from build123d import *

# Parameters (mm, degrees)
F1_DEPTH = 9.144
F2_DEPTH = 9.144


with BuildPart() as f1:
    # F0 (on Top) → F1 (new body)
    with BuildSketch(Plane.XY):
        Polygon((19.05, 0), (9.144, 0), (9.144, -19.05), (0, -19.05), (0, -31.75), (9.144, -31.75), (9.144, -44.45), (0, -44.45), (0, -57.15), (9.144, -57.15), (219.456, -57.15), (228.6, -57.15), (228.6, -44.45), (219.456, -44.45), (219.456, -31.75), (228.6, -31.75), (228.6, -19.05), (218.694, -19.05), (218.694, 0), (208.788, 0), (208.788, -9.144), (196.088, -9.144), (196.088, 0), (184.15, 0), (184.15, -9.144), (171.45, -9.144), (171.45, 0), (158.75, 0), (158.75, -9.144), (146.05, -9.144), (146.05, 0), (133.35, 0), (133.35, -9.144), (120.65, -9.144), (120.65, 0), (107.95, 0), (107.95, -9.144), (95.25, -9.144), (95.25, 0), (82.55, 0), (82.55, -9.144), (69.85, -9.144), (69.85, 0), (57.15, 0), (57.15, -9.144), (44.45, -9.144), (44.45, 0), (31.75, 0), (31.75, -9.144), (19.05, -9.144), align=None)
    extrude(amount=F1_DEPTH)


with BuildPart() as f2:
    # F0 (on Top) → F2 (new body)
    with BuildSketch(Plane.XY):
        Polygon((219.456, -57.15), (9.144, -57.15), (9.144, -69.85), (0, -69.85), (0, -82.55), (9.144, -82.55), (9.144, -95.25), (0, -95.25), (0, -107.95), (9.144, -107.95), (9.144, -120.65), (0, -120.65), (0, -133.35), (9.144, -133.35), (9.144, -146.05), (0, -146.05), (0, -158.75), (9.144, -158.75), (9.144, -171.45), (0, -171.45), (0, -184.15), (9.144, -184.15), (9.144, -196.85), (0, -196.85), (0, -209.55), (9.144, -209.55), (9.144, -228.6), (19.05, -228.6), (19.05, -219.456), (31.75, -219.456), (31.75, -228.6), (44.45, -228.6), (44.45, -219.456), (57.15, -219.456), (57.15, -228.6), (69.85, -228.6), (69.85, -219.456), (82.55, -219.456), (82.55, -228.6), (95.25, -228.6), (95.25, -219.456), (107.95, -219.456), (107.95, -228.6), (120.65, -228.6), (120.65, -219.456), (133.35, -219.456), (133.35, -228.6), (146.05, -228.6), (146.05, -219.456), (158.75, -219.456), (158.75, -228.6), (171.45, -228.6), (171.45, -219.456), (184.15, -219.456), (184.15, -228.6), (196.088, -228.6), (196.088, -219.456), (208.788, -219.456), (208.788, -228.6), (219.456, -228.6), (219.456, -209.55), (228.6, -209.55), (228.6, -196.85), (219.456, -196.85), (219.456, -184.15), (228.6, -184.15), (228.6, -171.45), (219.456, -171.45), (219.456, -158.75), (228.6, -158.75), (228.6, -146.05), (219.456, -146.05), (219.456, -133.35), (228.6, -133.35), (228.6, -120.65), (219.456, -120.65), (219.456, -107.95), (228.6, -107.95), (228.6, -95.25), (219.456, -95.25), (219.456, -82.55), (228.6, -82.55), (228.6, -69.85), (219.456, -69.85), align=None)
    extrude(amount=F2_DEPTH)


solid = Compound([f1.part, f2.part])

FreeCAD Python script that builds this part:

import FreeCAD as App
import Part
import Sketcher
from FreeCAD import Vector
Q = App.Units.Quantity

doc = App.newDocument("Part")
body = doc.addObject("PartDesign::Body", "Body")

# Sketch on XY plane
sketch1 = doc.addObject("Sketcher::SketchObject", "Sketch")
body.addObject(sketch1)
sketch1.AttachmentSupport = (doc.XY_Plane, [""])
sketch1.MapMode = "FlatFace"
sketch1.addGeometry([
    Part.LineSegment(Vector(19.05, 0, 0), Vector(9.144, 0, 0)),  # 0
    Part.LineSegment(Vector(9.144, 0, 0), Vector(9.144, -19.05, 0)),  # 1
    Part.LineSegment(Vector(9.144, -19.05, 0), Vector(0, -19.05, 0)),  # 2
    Part.LineSegment(Vector(0, -19.05, 0), Vector(0, -31.75, 0)),  # 3
    Part.LineSegment(Vector(0, -31.75, 0), Vector(9.144, -31.75, 0)),  # 4
    Part.LineSegment(Vector(9.144, -31.75, 0), Vector(9.144, -44.45, 0)),  # 5
    Part.LineSegment(Vector(9.144, -44.45, 0), Vector(0, -44.45, 0)),  # 6
    Part.LineSegment(Vector(0, -44.45, 0), Vector(0, -57.15, 0)),  # 7
    Part.LineSegment(Vector(0, -57.15, 0), Vector(228.6, -57.15, 0)),  # 8
    Part.LineSegment(Vector(228.6, -57.15, 0), Vector(228.6, -44.45, 0)),  # 9
    Part.LineSegment(Vector(228.6, -44.45, 0), Vector(219.456, -44.45, 0)),  # 10
    Part.LineSegment(Vector(219.456, -44.45, 0), Vector(219.456, -31.75, 0)),  # 11
    Part.LineSegment(Vector(219.456, -31.75, 0), Vector(228.6, -31.75, 0)),  # 12
    Part.LineSegment(Vector(228.6, -31.75, 0), Vector(228.6, -19.05, 0)),  # 13
    Part.LineSegment(Vector(228.6, -19.05, 0), Vector(218.694, -19.05, 0)),  # 14
    Part.LineSegment(Vector(218.694, -19.05, 0), Vector(218.694, 0, 0)),  # 15
    Part.LineSegment(Vector(218.694, 0, 0), Vector(208.788, 0, 0)),  # 16
    Part.LineSegment(Vector(208.788, 0, 0), Vector(208.788, -9.144, 0)),  # 17
    Part.LineSegment(Vector(208.788, -9.144, 0), Vector(196.088, -9.144, 0)),  # 18
    Part.LineSegment(Vector(196.088, -9.144, 0), Vector(196.088, 0, 0)),  # 19
    Part.LineSegment(Vector(196.088, 0, 0), Vector(184.15, 0, 0)),  # 20
    Part.LineSegment(Vector(184.15, 0, 0), Vector(184.15, -9.144, 0)),  # 21
    Part.LineSegment(Vector(184.15, -9.144, 0), Vector(171.45, -9.144, 0)),  # 22
    Part.LineSegment(Vector(171.45, -9.144, 0), Vector(171.45, 0, 0)),  # 23
    Part.LineSegment(Vector(171.45, 0, 0), Vector(158.75, 0, 0)),  # 24
    Part.LineSegment(Vector(158.75, 0, 0), Vector(158.75, -9.144, 0)),  # 25
    Part.LineSegment(Vector(158.75, -9.144, 0), Vector(146.05, -9.144, 0)),  # 26
    Part.LineSegment(Vector(146.05, -9.144, 0), Vector(146.05, 0, 0)),  # 27
    Part.LineSegment(Vector(146.05, 0, 0), Vector(133.35, 0, 0)),  # 28
    Part.LineSegment(Vector(133.35, 0, 0), Vector(133.35, -9.144, 0)),  # 29
    Part.LineSegment(Vector(133.35, -9.144, 0), Vector(120.65, -9.144, 0)),  # 30
    Part.LineSegment(Vector(120.65, -9.144, 0), Vector(120.65, 0, 0)),  # 31
    Part.LineSegment(Vector(120.65, 0, 0), Vector(107.95, 0, 0)),  # 32
    Part.LineSegment(Vector(107.95, 0, 0), Vector(107.95, -9.144, 0)),  # 33
    Part.LineSegment(Vector(107.95, -9.144, 0), Vector(95.25, -9.144, 0)),  # 34
    Part.LineSegment(Vector(95.25, -9.144, 0), Vector(95.25, 0, 0)),  # 35
    Part.LineSegment(Vector(95.25, 0, 0), Vector(82.55, 0, 0)),  # 36
    Part.LineSegment(Vector(82.55, 0, 0), Vector(82.55, -9.144, 0)),  # 37
    Part.LineSegment(Vector(82.55, -9.144, 0), Vector(69.85, -9.144, 0)),  # 38
    Part.LineSegment(Vector(69.85, -9.144, 0), Vector(69.85, 0, 0)),  # 39
    Part.LineSegment(Vector(69.85, 0, 0), Vector(57.15, 0, 0)),  # 40
    Part.LineSegment(Vector(57.15, 0, 0), Vector(57.15, -9.144, 0)),  # 41
    Part.LineSegment(Vector(57.15, -9.144, 0), Vector(44.45, -9.144, 0)),  # 42
    Part.LineSegment(Vector(44.45, -9.144, 0), Vector(44.45, 0, 0)),  # 43
    Part.LineSegment(Vector(44.45, 0, 0), Vector(31.75, 0, 0)),  # 44
    Part.LineSegment(Vector(31.75, 0, 0), Vector(31.75, -9.144, 0)),  # 45
    Part.LineSegment(Vector(31.75, -9.144, 0), Vector(19.05, -9.144, 0)),  # 46
    Part.LineSegment(Vector(19.05, -9.144, 0), Vector(19.05, 0, 0)),  # 47
], False)
sketch1.addConstraint([
    Sketcher.Constraint("Coincident", 0, 2, 1, 1),
    Sketcher.Constraint("Coincident", 1, 2, 2, 1),
    Sketcher.Constraint("Coincident", 2, 2, 3, 1),
    Sketcher.Constraint("Coincident", 3, 2, 4, 1),
    Sketcher.Constraint("Coincident", 4, 2, 5, 1),
    Sketcher.Constraint("Coincident", 5, 2, 6, 1),
    Sketcher.Constraint("Coincident", 6, 2, 7, 1),
    Sketcher.Constraint("Coincident", 7, 2, 8, 1),
    Sketcher.Constraint("Coincident", 8, 2, 9, 1),
    Sketcher.Constraint("Coincident", 9, 2, 10, 1),
    Sketcher.Constraint("Coincident", 10, 2, 11, 1),
    Sketcher.Constraint("Coincident", 11, 2, 12, 1),
    Sketcher.Constraint("Coincident", 12, 2, 13, 1),
    Sketcher.Constraint("Coincident", 13, 2, 14, 1),
    Sketcher.Constraint("Coincident", 14, 2, 15, 1),
    Sketcher.Constraint("Coincident", 15, 2, 16, 1),
    Sketcher.Constraint("Coincident", 16, 2, 17, 1),
    Sketcher.Constraint("Coincident", 17, 2, 18, 1),
    Sketcher.Constraint("Coincident", 18, 2, 19, 1),
    Sketcher.Constraint("Coincident", 19, 2, 20, 1),
    Sketcher.Constraint("Coincident", 20, 2, 21, 1),
    Sketcher.Constraint("Coincident", 21, 2, 22, 1),
    Sketcher.Constraint("Coincident", 22, 2, 23, 1),
    Sketcher.Constraint("Coincident", 23, 2, 24, 1),
    Sketcher.Constraint("Coincident", 24, 2, 25, 1),
    Sketcher.Constraint("Coincident", 25, 2, 26, 1),
    Sketcher.Constraint("Coincident", 26, 2, 27, 1),
    Sketcher.Constraint("Coincident", 27, 2, 28, 1),
    Sketcher.Constraint("Coincident", 28, 2, 29, 1),
    Sketcher.Constraint("Coincident", 29, 2, 30, 1),
    Sketcher.Constraint("Coincident", 30, 2, 31, 1),
    Sketcher.Constraint("Coincident", 31, 2, 32, 1),
    Sketcher.Constraint("Coincident", 32, 2, 33, 1),
    Sketcher.Constraint("Coincident", 33, 2, 34, 1),
    Sketcher.Constraint("Coincident", 34, 2, 35, 1),
    Sketcher.Constraint("Coincident", 35, 2, 36, 1),
    Sketcher.Constraint("Coincident", 36, 2, 37, 1),
    Sketcher.Constraint("Coincident", 37, 2, 38, 1),
    Sketcher.Constraint("Coincident", 38, 2, 39, 1),
    Sketcher.Constraint("Coincident", 39, 2, 40, 1),
    Sketcher.Constraint("Coincident", 40, 2, 41, 1),
    Sketcher.Constraint("Coincident", 41, 2, 42, 1),
    Sketcher.Constraint("Coincident", 42, 2, 43, 1),
    Sketcher.Constraint("Coincident", 43, 2, 44, 1),
    Sketcher.Constraint("Coincident", 44, 2, 45, 1),
    Sketcher.Constraint("Coincident", 45, 2, 46, 1),
    Sketcher.Constraint("Coincident", 46, 2, 47, 1),
    Sketcher.Constraint("Coincident", 47, 2, 0, 1),
    Sketcher.Constraint("Horizontal", 0),
    Sketcher.Constraint("Vertical", 1),
    Sketcher.Constraint("Horizontal", 2),
    Sketcher.Constraint("Vertical", 3),
    Sketcher.Constraint("Horizontal", 4),
    Sketcher.Constraint("Vertical", 5),
    Sketcher.Constraint("Horizontal", 6),
    Sketcher.Constraint("Vertical", 7),
    Sketcher.Constraint("Horizontal", 8),
    Sketcher.Constraint("Vertical", 9),
    Sketcher.Constraint("Horizontal", 10),
    Sketcher.Constraint("Vertical", 11),
    Sketcher.Constraint("Horizontal", 12),
    Sketcher.Constraint("Vertical", 13),
    Sketcher.Constraint("Horizontal", 14),
    Sketcher.Constraint("Vertical", 15),
    Sketcher.Constraint("Horizontal", 16),
    Sketcher.Constraint("Vertical", 17),
    Sketcher.Constraint("Horizontal", 18),
    Sketcher.Constraint("Vertical", 19),
    Sketcher.Constraint("Horizontal", 20),
    Sketcher.Constraint("Vertical", 21),
    Sketcher.Constraint("Horizontal", 22),
    Sketcher.Constraint("Vertical", 23),
    Sketcher.Constraint("Horizontal", 24),
    Sketcher.Constraint("Vertical", 25),
    Sketcher.Constraint("Horizontal", 26),
    Sketcher.Constraint("Vertical", 27),
    Sketcher.Constraint("Horizontal", 28),
    Sketcher.Constraint("Vertical", 29),
    Sketcher.Constraint("Horizontal", 30),
    Sketcher.Constraint("Vertical", 31),
    Sketcher.Constraint("Horizontal", 32),
    Sketcher.Constraint("Vertical", 33),
    Sketcher.Constraint("Horizontal", 34),
    Sketcher.Constraint("Vertical", 35),
    Sketcher.Constraint("Horizontal", 36),
    Sketcher.Constraint("Vertical", 37),
    Sketcher.Constraint("Horizontal", 38),
    Sketcher.Constraint("Vertical", 39),
    Sketcher.Constraint("Horizontal", 40),
    Sketcher.Constraint("Vertical", 41),
    Sketcher.Constraint("Horizontal", 42),
    Sketcher.Constraint("Vertical", 43),
    Sketcher.Constraint("Horizontal", 44),
    Sketcher.Constraint("Vertical", 45),
    Sketcher.Constraint("Horizontal", 46),
    Sketcher.Constraint("Vertical", 47),
    Sketcher.Constraint("PointOnObject", 0, 2, -1),
    Sketcher.Constraint("PointOnObject", 2, 2, -2),
    Sketcher.Constraint("PointOnObject", 6, 2, -2),
    Sketcher.Constraint("PointOnObject", 15, 2, -1),
    Sketcher.Constraint("PointOnObject", 19, 2, -1),
    Sketcher.Constraint("PointOnObject", 23, 2, -1),
    Sketcher.Constraint("PointOnObject", 27, 2, -1),
    Sketcher.Constraint("PointOnObject", 31, 2, -1),
    Sketcher.Constraint("PointOnObject", 35, 2, -1),
    Sketcher.Constraint("PointOnObject", 39, 2, -1),
    Sketcher.Constraint("PointOnObject", 43, 2, -1),
    Sketcher.Constraint("Horizontal", 6, 2, 9, 2),
    Sketcher.Constraint("Horizontal", 4, 2, 11, 2),
    Sketcher.Constraint("Horizontal", 2, 2, 13, 2),
    Sketcher.Constraint("Horizontal", 18, 2, 21, 2),
    Sketcher.Constraint("Horizontal", 22, 2, 25, 2),
    Sketcher.Constraint("Horizontal", 26, 2, 29, 2),
    Sketcher.Constraint("Horizontal", 30, 2, 33, 2),
    Sketcher.Constraint("Horizontal", 34, 2, 37, 2),
    Sketcher.Constraint("Horizontal", 38, 2, 41, 2),
    Sketcher.Constraint("Horizontal", 42, 2, 45, 2),
    Sketcher.Constraint("Vertical", 1, 2, 4, 2),
    Sketcher.Constraint("Vertical", 9, 2, 12, 2),
    Sketcher.Constraint("Equal", 6, 10),
    Sketcher.Constraint("Equal", 0, 14),
    Sketcher.Constraint("Equal", 14, 16),
    Sketcher.Constraint("Equal", 18, 22),
    Sketcher.Constraint("Equal", 22, 24),
    Sketcher.Constraint("Equal", 24, 26),
    Sketcher.Constraint("Equal", 26, 28),
    Sketcher.Constraint("Equal", 28, 30),
    Sketcher.Constraint("Equal", 30, 32),
    Sketcher.Constraint("Equal", 32, 34),
    Sketcher.Constraint("Equal", 34, 36),
    Sketcher.Constraint("Equal", 36, 38),
    Sketcher.Constraint("Equal", 38, 40),
    Sketcher.Constraint("Equal", 40, 42),
    Sketcher.Constraint("Equal", 42, 44),
    Sketcher.Constraint("Equal", 44, 46),
    Sketcher.Constraint("Equal", 46, 3),
    Sketcher.Constraint("Equal", 3, 5),
    Sketcher.Constraint("Equal", 5, 7),
    Sketcher.Constraint("Equal", 12, 17),
    Sketcher.Constraint("DistanceX", 8, 1, 8, 2, Q("9 in")),
    Sketcher.Constraint("DistanceX", 18, 2, 18, 1, Q("0.5 in")),
    Sketcher.Constraint("DistanceX", 0, 2, 0, 1, Q("0.39 in")),
    Sketcher.Constraint("DistanceX", 2, 2, 2, 1, Q("0.36 in")),
    Sketcher.Constraint("DistanceY", 1, 2, 1, 1, Q("0.75 in")),
])
pad1 = doc.addObject("PartDesign::Pad", "Pad")
body.addObject(pad1)
pad1.Profile = sketch1
pad1.Length = Q("0.36 in")
body2 = doc.addObject("PartDesign::Body", "Body001")

# Sketch on XY plane
sketch2 = doc.addObject("Sketcher::SketchObject", "Sketch001")
body2.addObject(sketch2)
sketch2.AttachmentSupport = (doc.getObject("XY_Plane001"), [""])
sketch2.MapMode = "FlatFace"
sketch2.addGeometry([
    Part.LineSegment(Vector(219.456, -57.15, 0), Vector(9.144, -57.15, 0)),  # 0
    Part.LineSegment(Vector(9.144, -57.15, 0), Vector(9.144, -69.85, 0)),  # 1
    Part.LineSegment(Vector(9.144, -69.85, 0), Vector(0, -69.85, 0)),  # 2
    Part.LineSegment(Vector(0, -69.85, 0), Vector(0, -82.55, 0)),  # 3
    Part.LineSegment(Vector(0, -82.55, 0), Vector(9.144, -82.55, 0)),  # 4
    Part.LineSegment(Vector(9.144, -82.55, 0), Vector(9.144, -95.25, 0)),  # 5
    Part.LineSegment(Vector(9.144, -95.25, 0), Vector(0, -95.25, 0)),  # 6
    Part.LineSegment(Vector(0, -95.25, 0), Vector(0, -107.95, 0)),  # 7
    Part.LineSegment(Vector(0, -107.95, 0), Vector(9.144, -107.95, 0)),  # 8
    Part.LineSegment(Vector(9.144, -107.95, 0), Vector(9.144, -120.65, 0)),  # 9
    Part.LineSegment(Vector(9.144, -120.65, 0), Vector(0, -120.65, 0)),  # 10
    Part.LineSegment(Vector(0, -120.65, 0), Vector(0, -133.35, 0)),  # 11
    Part.LineSegment(Vector(0, -133.35, 0), Vector(9.144, -133.35, 0)),  # 12
    Part.LineSegment(Vector(9.144, -133.35, 0), Vector(9.144, -146.05, 0)),  # 13
    Part.LineSegment(Vector(9.144, -146.05, 0), Vector(0, -146.05, 0)),  # 14
    Part.LineSegment(Vector(0, -146.05, 0), Vector(0, -158.75, 0)),  # 15
    Part.LineSegment(Vector(0, -158.75, 0), Vector(9.144, -158.75, 0)),  # 16
    Part.LineSegment(Vector(9.144, -158.75, 0), Vector(9.144, -171.45, 0)),  # 17
    Part.LineSegment(Vector(9.144, -171.45, 0), Vector(0, -171.45, 0)),  # 18
    Part.LineSegment(Vector(0, -171.45, 0), Vector(0, -184.15, 0)),  # 19
    Part.LineSegment(Vector(0, -184.15, 0), Vector(9.144, -184.15, 0)),  # 20
    Part.LineSegment(Vector(9.144, -184.15, 0), Vector(9.144, -196.85, 0)),  # 21
    Part.LineSegment(Vector(9.144, -196.85, 0), Vector(0, -196.85, 0)),  # 22
    Part.LineSegment(Vector(0, -196.85, 0), Vector(0, -209.55, 0)),  # 23
    Part.LineSegment(Vector(0, -209.55, 0), Vector(9.144, -209.55, 0)),  # 24
    Part.LineSegment(Vector(9.144, -209.55, 0), Vector(9.144, -228.6, 0)),  # 25
    Part.LineSegment(Vector(9.144, -228.6, 0), Vector(19.05, -228.6, 0)),  # 26
    Part.LineSegment(Vector(19.05, -228.6, 0), Vector(19.05, -219.456, 0)),  # 27
    Part.LineSegment(Vector(19.05, -219.456, 0), Vector(31.75, -219.456, 0)),  # 28
    Part.LineSegment(Vector(31.75, -219.456, 0), Vector(31.75, -228.6, 0)),  # 29
    Part.LineSegment(Vector(31.75, -228.6, 0), Vector(44.45, -228.6, 0)),  # 30
    Part.LineSegment(Vector(44.45, -228.6, 0), Vector(44.45, -219.456, 0)),  # 31
    Part.LineSegment(Vector(44.45, -219.456, 0), Vector(57.15, -219.456, 0)),  # 32
    Part.LineSegment(Vector(57.15, -219.456, 0), Vector(57.15, -228.6, 0)),  # 33
    Part.LineSegment(Vector(57.15, -228.6, 0), Vector(69.85, -228.6, 0)),  # 34
    Part.LineSegment(Vector(69.85, -228.6, 0), Vector(69.85, -219.456, 0)),  # 35
    Part.LineSegment(Vector(69.85, -219.456, 0), Vector(82.55, -219.456, 0)),  # 36
    Part.LineSegment(Vector(82.55, -219.456, 0), Vector(82.55, -228.6, 0)),  # 37
    Part.LineSegment(Vector(82.55, -228.6, 0), Vector(95.25, -228.6, 0)),  # 38
    Part.LineSegment(Vector(95.25, -228.6, 0), Vector(95.25, -219.456, 0)),  # 39
    Part.LineSegment(Vector(95.25, -219.456, 0), Vector(107.95, -219.456, 0)),  # 40
    Part.LineSegment(Vector(107.95, -219.456, 0), Vector(107.95, -228.6, 0)),  # 41
    Part.LineSegment(Vector(107.95, -228.6, 0), Vector(120.65, -228.6, 0)),  # 42
    Part.LineSegment(Vector(120.65, -228.6, 0), Vector(120.65, -219.456, 0)),  # 43
    Part.LineSegment(Vector(120.65, -219.456, 0), Vector(133.35, -219.456, 0)),  # 44
    Part.LineSegment(Vector(133.35, -219.456, 0), Vector(133.35, -228.6, 0)),  # 45
    Part.LineSegment(Vector(133.35, -228.6, 0), Vector(146.05, -228.6, 0)),  # 46
    Part.LineSegment(Vector(146.05, -228.6, 0), Vector(146.05, -219.456, 0)),  # 47
    Part.LineSegment(Vector(146.05, -219.456, 0), Vector(158.75, -219.456, 0)),  # 48
    Part.LineSegment(Vector(158.75, -219.456, 0), Vector(158.75, -228.6, 0)),  # 49
    Part.LineSegment(Vector(158.75, -228.6, 0), Vector(171.45, -228.6, 0)),  # 50
    Part.LineSegment(Vector(171.45, -228.6, 0), Vector(171.45, -219.456, 0)),  # 51
    Part.LineSegment(Vector(171.45, -219.456, 0), Vector(184.15, -219.456, 0)),  # 52
    Part.LineSegment(Vector(184.15, -219.456, 0), Vector(184.15, -228.6, 0)),  # 53
    Part.LineSegment(Vector(184.15, -228.6, 0), Vector(196.088, -228.6, 0)),  # 54
    Part.LineSegment(Vector(196.088, -228.6, 0), Vector(196.088, -219.456, 0)),  # 55
    Part.LineSegment(Vector(196.088, -219.456, 0), Vector(208.788, -219.456, 0)),  # 56
    Part.LineSegment(Vector(208.788, -219.456, 0), Vector(208.788, -228.6, 0)),  # 57
    Part.LineSegment(Vector(208.788, -228.6, 0), Vector(219.456, -228.6, 0)),  # 58
    Part.LineSegment(Vector(219.456, -228.6, 0), Vector(219.456, -209.55, 0)),  # 59
    Part.LineSegment(Vector(219.456, -209.55, 0), Vector(228.6, -209.55, 0)),  # 60
    Part.LineSegment(Vector(228.6, -209.55, 0), Vector(228.6, -196.85, 0)),  # 61
    Part.LineSegment(Vector(228.6, -196.85, 0), Vector(219.456, -196.85, 0)),  # 62
    Part.LineSegment(Vector(219.456, -196.85, 0), Vector(219.456, -184.15, 0)),  # 63
    Part.LineSegment(Vector(219.456, -184.15, 0), Vector(228.6, -184.15, 0)),  # 64
    Part.LineSegment(Vector(228.6, -184.15, 0), Vector(228.6, -171.45, 0)),  # 65
    Part.LineSegment(Vector(228.6, -171.45, 0), Vector(219.456, -171.45, 0)),  # 66
    Part.LineSegment(Vector(219.456, -171.45, 0), Vector(219.456, -158.75, 0)),  # 67
    Part.LineSegment(Vector(219.456, -158.75, 0), Vector(228.6, -158.75, 0)),  # 68
    Part.LineSegment(Vector(228.6, -158.75, 0), Vector(228.6, -146.05, 0)),  # 69
    Part.LineSegment(Vector(228.6, -146.05, 0), Vector(219.456, -146.05, 0)),  # 70
    Part.LineSegment(Vector(219.456, -146.05, 0), Vector(219.456, -133.35, 0)),  # 71
    Part.LineSegment(Vector(219.456, -133.35, 0), Vector(228.6, -133.35, 0)),  # 72
    Part.LineSegment(Vector(228.6, -133.35, 0), Vector(228.6, -120.65, 0)),  # 73
    Part.LineSegment(Vector(228.6, -120.65, 0), Vector(219.456, -120.65, 0)),  # 74
    Part.LineSegment(Vector(219.456, -120.65, 0), Vector(219.456, -107.95, 0)),  # 75
    Part.LineSegment(Vector(219.456, -107.95, 0), Vector(228.6, -107.95, 0)),  # 76
    Part.LineSegment(Vector(228.6, -107.95, 0), Vector(228.6, -95.25, 0)),  # 77
    Part.LineSegment(Vector(228.6, -95.25, 0), Vector(219.456, -95.25, 0)),  # 78
    Part.LineSegment(Vector(219.456, -95.25, 0), Vector(219.456, -82.55, 0)),  # 79
    Part.LineSegment(Vector(219.456, -82.55, 0), Vector(228.6, -82.55, 0)),  # 80
    Part.LineSegment(Vector(228.6, -82.55, 0), Vector(228.6, -69.85, 0)),  # 81
    Part.LineSegment(Vector(228.6, -69.85, 0), Vector(219.456, -69.85, 0)),  # 82
    Part.LineSegment(Vector(219.456, -69.85, 0), Vector(219.456, -57.15, 0)),  # 83
], False)
sketch2.addConstraint([
    Sketcher.Constraint("Coincident", 0, 2, 1, 1),
    Sketcher.Constraint("Coincident", 1, 2, 2, 1),
    Sketcher.Constraint("Coincident", 2, 2, 3, 1),
    Sketcher.Constraint("Coincident", 3, 2, 4, 1),
    Sketcher.Constraint("Coincident", 4, 2, 5, 1),
    Sketcher.Constraint("Coincident", 5, 2, 6, 1),
    Sketcher.Constraint("Coincident", 6, 2, 7, 1),
    Sketcher.Constraint("Coincident", 7, 2, 8, 1),
    Sketcher.Constraint("Coincident", 8, 2, 9, 1),
    Sketcher.Constraint("Coincident", 9, 2, 10, 1),
    Sketcher.Constraint("Coincident", 10, 2, 11, 1),
    Sketcher.Constraint("Coincident", 11, 2, 12, 1),
    Sketcher.Constraint("Coincident", 12, 2, 13, 1),
    Sketcher.Constraint("Coincident", 13, 2, 14, 1),
    Sketcher.Constraint("Coincident", 14, 2, 15, 1),
    Sketcher.Constraint("Coincident", 15, 2, 16, 1),
    Sketcher.Constraint("Coincident", 16, 2, 17, 1),
    Sketcher.Constraint("Coincident", 17, 2, 18, 1),
    Sketcher.Constraint("Coincident", 18, 2, 19, 1),
    Sketcher.Constraint("Coincident", 19, 2, 20, 1),
    Sketcher.Constraint("Coincident", 20, 2, 21, 1),
    Sketcher.Constraint("Coincident", 21, 2, 22, 1),
    Sketcher.Constraint("Coincident", 22, 2, 23, 1),
    Sketcher.Constraint("Coincident", 23, 2, 24, 1),
    Sketcher.Constraint("Coincident", 24, 2, 25, 1),
    Sketcher.Constraint("Coincident", 25, 2, 26, 1),
    Sketcher.Constraint("Coincident", 26, 2, 27, 1),
    Sketcher.Constraint("Coincident", 27, 2, 28, 1),
    Sketcher.Constraint("Coincident", 28, 2, 29, 1),
    Sketcher.Constraint("Coincident", 29, 2, 30, 1),
    Sketcher.Constraint("Coincident", 30, 2, 31, 1),
    Sketcher.Constraint("Coincident", 31, 2, 32, 1),
    Sketcher.Constraint("Coincident", 32, 2, 33, 1),
    Sketcher.Constraint("Coincident", 33, 2, 34, 1),
    Sketcher.Constraint("Coincident", 34, 2, 35, 1),
    Sketcher.Constraint("Coincident", 35, 2, 36, 1),
    Sketcher.Constraint("Coincident", 36, 2, 37, 1),
    Sketcher.Constraint("Coincident", 37, 2, 38, 1),
    Sketcher.Constraint("Coincident", 38, 2, 39, 1),
    Sketcher.Constraint("Coincident", 39, 2, 40, 1),
    Sketcher.Constraint("Coincident", 40, 2, 41, 1),
    Sketcher.Constraint("Coincident", 41, 2, 42, 1),
    Sketcher.Constraint("Coincident", 42, 2, 43, 1),
    Sketcher.Constraint("Coincident", 43, 2, 44, 1),
    Sketcher.Constraint("Coincident", 44, 2, 45, 1),
    Sketcher.Constraint("Coincident", 45, 2, 46, 1),
    Sketcher.Constraint("Coincident", 46, 2, 47, 1),
    Sketcher.Constraint("Coincident", 47, 2, 48, 1),
    Sketcher.Constraint("Coincident", 48, 2, 49, 1),
    Sketcher.Constraint("Coincident", 49, 2, 50, 1),
    Sketcher.Constraint("Coincident", 50, 2, 51, 1),
    Sketcher.Constraint("Coincident", 51, 2, 52, 1),
    Sketcher.Constraint("Coincident", 52, 2, 53, 1),
    Sketcher.Constraint("Coincident", 53, 2, 54, 1),
    Sketcher.Constraint("Coincident", 54, 2, 55, 1),
    Sketcher.Constraint("Coincident", 55, 2, 56, 1),
    Sketcher.Constraint("Coincident", 56, 2, 57, 1),
    Sketcher.Constraint("Coincident", 57, 2, 58, 1),
    Sketcher.Constraint("Coincident", 58, 2, 59, 1),
    Sketcher.Constraint("Coincident", 59, 2, 60, 1),
    Sketcher.Constraint("Coincident", 60, 2, 61, 1),
    Sketcher.Constraint("Coincident", 61, 2, 62, 1),
    Sketcher.Constraint("Coincident", 62, 2, 63, 1),
    Sketcher.Constraint("Coincident", 63, 2, 64, 1),
    Sketcher.Constraint("Coincident", 64, 2, 65, 1),
    Sketcher.Constraint("Coincident", 65, 2, 66, 1),
    Sketcher.Constraint("Coincident", 66, 2, 67, 1),
    Sketcher.Constraint("Coincident", 67, 2, 68, 1),
    Sketcher.Constraint("Coincident", 68, 2, 69, 1),
    Sketcher.Constraint("Coincident", 69, 2, 70, 1),
    Sketcher.Constraint("Coincident", 70, 2, 71, 1),
    Sketcher.Constraint("Coincident", 71, 2, 72, 1),
    Sketcher.Constraint("Coincident", 72, 2, 73, 1),
    Sketcher.Constraint("Coincident", 73, 2, 74, 1),
    Sketcher.Constraint("Coincident", 74, 2, 75, 1),
    Sketcher.Constraint("Coincident", 75, 2, 76, 1),
    Sketcher.Constraint("Coincident", 76, 2, 77, 1),
    Sketcher.Constraint("Coincident", 77, 2, 78, 1),
    Sketcher.Constraint("Coincident", 78, 2, 79, 1),
    Sketcher.Constraint("Coincident", 79, 2, 80, 1),
    Sketcher.Constraint("Coincident", 80, 2, 81, 1),
    Sketcher.Constraint("Coincident", 81, 2, 82, 1),
    Sketcher.Constraint("Coincident", 82, 2, 83, 1),
    Sketcher.Constraint("Coincident", 83, 2, 0, 1),
    Sketcher.Constraint("Horizontal", 0),
    Sketcher.Constraint("Vertical", 1),
    Sketcher.Constraint("Horizontal", 2),
    Sketcher.Constraint("Vertical", 3),
    Sketcher.Constraint("Horizontal", 4),
    Sketcher.Constraint("Vertical", 5),
    Sketcher.Constraint("Horizontal", 6),
    Sketcher.Constraint("Vertical", 7),
    Sketcher.Constraint("Horizontal", 8),
    Sketcher.Constraint("Vertical", 9),
    Sketcher.Constraint("Horizontal", 10),
    Sketcher.Constraint("Vertical", 11),
    Sketcher.Constraint("Horizontal", 12),
    Sketcher.Constraint("Vertical", 13),
    Sketcher.Constraint("Horizontal", 14),
    Sketcher.Constraint("Vertical", 15),
    Sketcher.Constraint("Horizontal", 16),
    Sketcher.Constraint("Vertical", 17),
    Sketcher.Constraint("Horizontal", 18),
    Sketcher.Constraint("Vertical", 19),
    Sketcher.Constraint("Horizontal", 20),
    Sketcher.Constraint("Vertical", 21),
    Sketcher.Constraint("Horizontal", 22),
    Sketcher.Constraint("Vertical", 23),
    Sketcher.Constraint("Horizontal", 24),
    Sketcher.Constraint("Vertical", 25),
    Sketcher.Constraint("Horizontal", 26),
    Sketcher.Constraint("Vertical", 27),
    Sketcher.Constraint("Horizontal", 28),
    Sketcher.Constraint("Vertical", 29),
    Sketcher.Constraint("Horizontal", 30),
    Sketcher.Constraint("Vertical", 31),
    Sketcher.Constraint("Horizontal", 32),
    Sketcher.Constraint("Vertical", 33),
    Sketcher.Constraint("Horizontal", 34),
    Sketcher.Constraint("Vertical", 35),
    Sketcher.Constraint("Horizontal", 36),
    Sketcher.Constraint("Vertical", 37),
    Sketcher.Constraint("Horizontal", 38),
    Sketcher.Constraint("Vertical", 39),
    Sketcher.Constraint("Horizontal", 40),
    Sketcher.Constraint("Vertical", 41),
    Sketcher.Constraint("Horizontal", 42),
    Sketcher.Constraint("Vertical", 43),
    Sketcher.Constraint("Horizontal", 44),
    Sketcher.Constraint("Vertical", 45),
    Sketcher.Constraint("Horizontal", 46),
    Sketcher.Constraint("Vertical", 47),
    Sketcher.Constraint("Horizontal", 48),
    Sketcher.Constraint("Vertical", 49),
    Sketcher.Constraint("Horizontal", 50),
    Sketcher.Constraint("Vertical", 51),
    Sketcher.Constraint("Horizontal", 52),
    Sketcher.Constraint("Vertical", 53),
    Sketcher.Constraint("Horizontal", 54),
    Sketcher.Constraint("Vertical", 55),
    Sketcher.Constraint("Horizontal", 56),
    Sketcher.Constraint("Vertical", 57),
    Sketcher.Constraint("Horizontal", 58),
    Sketcher.Constraint("Vertical", 59),
    Sketcher.Constraint("Horizontal", 60),
    Sketcher.Constraint("Vertical", 61),
    Sketcher.Constraint("Horizontal", 62),
    Sketcher.Constraint("Vertical", 63),
    Sketcher.Constraint("Horizontal", 64),
    Sketcher.Constraint("Vertical", 65),
    Sketcher.Constraint("Horizontal", 66),
    Sketcher.Constraint("Vertical", 67),
    Sketcher.Constraint("Horizontal", 68),
    Sketcher.Constraint("Vertical", 69),
    Sketcher.Constraint("Horizontal", 70),
    Sketcher.Constraint("Vertical", 71),
    Sketcher.Constraint("Horizontal", 72),
    Sketcher.Constraint("Vertical", 73),
    Sketcher.Constraint("Horizontal", 74),
    Sketcher.Constraint("Vertical", 75),
    Sketcher.Constraint("Horizontal", 76),
    Sketcher.Constraint("Vertical", 77),
    Sketcher.Constraint("Horizontal", 78),
    Sketcher.Constraint("Vertical", 79),
    Sketcher.Constraint("Horizontal", 80),
    Sketcher.Constraint("Vertical", 81),
    Sketcher.Constraint("Horizontal", 82),
    Sketcher.Constraint("Vertical", 83),
    Sketcher.Constraint("PointOnObject", 2, 2, -2),
    Sketcher.Constraint("PointOnObject", 6, 2, -2),
    Sketcher.Constraint("PointOnObject", 10, 2, -2),
    Sketcher.Constraint("PointOnObject", 14, 2, -2),
    Sketcher.Constraint("PointOnObject", 18, 2, -2),
    Sketcher.Constraint("PointOnObject", 22, 2, -2),
    Sketcher.Constraint("Horizontal", 26, 2, 29, 2),
    Sketcher.Constraint("Horizontal", 28, 2, 31, 2),
    Sketcher.Constraint("Horizontal", 30, 2, 33, 2),
    Sketcher.Constraint("Horizontal", 32, 2, 35, 2),
    Sketcher.Constraint("Horizontal", 34, 2, 37, 2),
    Sketcher.Constraint("Horizontal", 36, 2, 39, 2),
    Sketcher.Constraint("Horizontal", 38, 2, 41, 2),
    Sketcher.Constraint("Horizontal", 40, 2, 43, 2),
    Sketcher.Constraint("Horizontal", 42, 2, 45, 2),
    Sketcher.Constraint("Horizontal", 44, 2, 47, 2),
    Sketcher.Constraint("Horizontal", 46, 2, 49, 2),
    Sketcher.Constraint("Horizontal", 48, 2, 51, 2),
    Sketcher.Constraint("Horizontal", 50, 2, 53, 2),
    Sketcher.Constraint("Horizontal", 52, 2, 55, 2),
    Sketcher.Constraint("Horizontal", 54, 2, 57, 2),
    Sketcher.Constraint("Horizontal", 24, 2, 59, 2),
    Sketcher.Constraint("Horizontal", 22, 2, 61, 2),
    Sketcher.Constraint("Horizontal", 20, 2, 63, 2),
    Sketcher.Constraint("Horizontal", 18, 2, 65, 2),
    Sketcher.Constraint("Horizontal", 16, 2, 67, 2),
    Sketcher.Constraint("Horizontal", 14, 2, 69, 2),
    Sketcher.Constraint("Horizontal", 12, 2, 71, 2),
    Sketcher.Constraint("Horizontal", 10, 2, 73, 2),
    Sketcher.Constraint("Horizontal", 8, 2, 75, 2),
    Sketcher.Constraint("Horizontal", 6, 2, 77, 2),
    Sketcher.Constraint("Horizontal", 4, 2, 79, 2),
    Sketcher.Constraint("Horizontal", 2, 2, 81, 2),
    Sketcher.Constraint("Vertical", 1, 2, 4, 2),
    Sketcher.Constraint("Vertical", 5, 2, 8, 2),
    Sketcher.Constraint("Vertical", 9, 2, 12, 2),
    Sketcher.Constraint("Vertical", 13, 2, 16, 2),
    Sketcher.Constraint("Vertical", 17, 2, 20, 2),
    Sketcher.Constraint("Vertical", 21, 2, 24, 2),
    Sketcher.Constraint("Vertical", 59, 2, 62, 2),
    Sketcher.Constraint("Vertical", 61, 2, 64, 2),
    Sketcher.Constraint("Vertical", 63, 2, 66, 2),
    Sketcher.Constraint("Vertical", 65, 2, 68, 2),
    Sketcher.Constraint("Vertical", 67, 2, 70, 2),
    Sketcher.Constraint("Vertical", 69, 2, 72, 2),
    Sketcher.Constraint("Vertical", 71, 2, 74, 2),
    Sketcher.Constraint("Vertical", 73, 2, 76, 2),
    Sketcher.Constraint("Vertical", 75, 2, 78, 2),
    Sketcher.Constraint("Vertical", 77, 2, 80, 2),
    Sketcher.Constraint("Vertical", 79, 2, 82, 2),
    Sketcher.Constraint("Equal", 28, 30),
    Sketcher.Constraint("Equal", 30, 32),
    Sketcher.Constraint("Equal", 32, 34),
    Sketcher.Constraint("Equal", 34, 36),
    Sketcher.Constraint("Equal", 36, 38),
    Sketcher.Constraint("Equal", 38, 40),
    Sketcher.Constraint("Equal", 40, 42),
    Sketcher.Constraint("Equal", 42, 44),
    Sketcher.Constraint("Equal", 44, 46),
    Sketcher.Constraint("Equal", 46, 48),
    Sketcher.Constraint("Equal", 48, 50),
    Sketcher.Constraint("Equal", 50, 52),
    Sketcher.Constraint("Equal", 52, 56),
    Sketcher.Constraint("Equal", 24, 60),
    Sketcher.Constraint("Equal", 56, 1),
    Sketcher.Constraint("Equal", 1, 3),
    Sketcher.Constraint("Equal", 3, 5),
    Sketcher.Constraint("Equal", 5, 7),
    Sketcher.Constraint("Equal", 7, 9),
    Sketcher.Constraint("Equal", 9, 11),
    Sketcher.Constraint("Equal", 11, 13),
    Sketcher.Constraint("Equal", 13, 15),
    Sketcher.Constraint("Equal", 15, 17),
    Sketcher.Constraint("Equal", 17, 19),
    Sketcher.Constraint("Equal", 19, 21),
    Sketcher.Constraint("Equal", 21, 23),
    Sketcher.Constraint("Equal", 82, 27),
    Sketcher.Constraint("DistanceX", 28, 1, 28, 2, Q("0.5 in")),
    Sketcher.Constraint("DistanceY", 25, 2, -1, 1, Q("9 in")),
    Sketcher.Constraint("DistanceX", -1, 1, 60, 2, Q("9 in")),
    Sketcher.Constraint("DistanceX", 0, 2, 0, 1, Q("8.28 in")),
    Sketcher.Constraint("DistanceX", 26, 1, 26, 2, Q("0.39 in")),
    Sketcher.Constraint("DistanceX", 54, 1, 54, 2, Q("0.47 in")),
    Sketcher.Constraint("DistanceY", 25, 2, 25, 1, Q("0.75 in")),
])
pad2 = doc.addObject("PartDesign::Pad", "Pad001")
body2.addObject(pad2)
pad2.Profile = sketch2
pad2.Length = Q("0.36 in")

doc.recompute()
